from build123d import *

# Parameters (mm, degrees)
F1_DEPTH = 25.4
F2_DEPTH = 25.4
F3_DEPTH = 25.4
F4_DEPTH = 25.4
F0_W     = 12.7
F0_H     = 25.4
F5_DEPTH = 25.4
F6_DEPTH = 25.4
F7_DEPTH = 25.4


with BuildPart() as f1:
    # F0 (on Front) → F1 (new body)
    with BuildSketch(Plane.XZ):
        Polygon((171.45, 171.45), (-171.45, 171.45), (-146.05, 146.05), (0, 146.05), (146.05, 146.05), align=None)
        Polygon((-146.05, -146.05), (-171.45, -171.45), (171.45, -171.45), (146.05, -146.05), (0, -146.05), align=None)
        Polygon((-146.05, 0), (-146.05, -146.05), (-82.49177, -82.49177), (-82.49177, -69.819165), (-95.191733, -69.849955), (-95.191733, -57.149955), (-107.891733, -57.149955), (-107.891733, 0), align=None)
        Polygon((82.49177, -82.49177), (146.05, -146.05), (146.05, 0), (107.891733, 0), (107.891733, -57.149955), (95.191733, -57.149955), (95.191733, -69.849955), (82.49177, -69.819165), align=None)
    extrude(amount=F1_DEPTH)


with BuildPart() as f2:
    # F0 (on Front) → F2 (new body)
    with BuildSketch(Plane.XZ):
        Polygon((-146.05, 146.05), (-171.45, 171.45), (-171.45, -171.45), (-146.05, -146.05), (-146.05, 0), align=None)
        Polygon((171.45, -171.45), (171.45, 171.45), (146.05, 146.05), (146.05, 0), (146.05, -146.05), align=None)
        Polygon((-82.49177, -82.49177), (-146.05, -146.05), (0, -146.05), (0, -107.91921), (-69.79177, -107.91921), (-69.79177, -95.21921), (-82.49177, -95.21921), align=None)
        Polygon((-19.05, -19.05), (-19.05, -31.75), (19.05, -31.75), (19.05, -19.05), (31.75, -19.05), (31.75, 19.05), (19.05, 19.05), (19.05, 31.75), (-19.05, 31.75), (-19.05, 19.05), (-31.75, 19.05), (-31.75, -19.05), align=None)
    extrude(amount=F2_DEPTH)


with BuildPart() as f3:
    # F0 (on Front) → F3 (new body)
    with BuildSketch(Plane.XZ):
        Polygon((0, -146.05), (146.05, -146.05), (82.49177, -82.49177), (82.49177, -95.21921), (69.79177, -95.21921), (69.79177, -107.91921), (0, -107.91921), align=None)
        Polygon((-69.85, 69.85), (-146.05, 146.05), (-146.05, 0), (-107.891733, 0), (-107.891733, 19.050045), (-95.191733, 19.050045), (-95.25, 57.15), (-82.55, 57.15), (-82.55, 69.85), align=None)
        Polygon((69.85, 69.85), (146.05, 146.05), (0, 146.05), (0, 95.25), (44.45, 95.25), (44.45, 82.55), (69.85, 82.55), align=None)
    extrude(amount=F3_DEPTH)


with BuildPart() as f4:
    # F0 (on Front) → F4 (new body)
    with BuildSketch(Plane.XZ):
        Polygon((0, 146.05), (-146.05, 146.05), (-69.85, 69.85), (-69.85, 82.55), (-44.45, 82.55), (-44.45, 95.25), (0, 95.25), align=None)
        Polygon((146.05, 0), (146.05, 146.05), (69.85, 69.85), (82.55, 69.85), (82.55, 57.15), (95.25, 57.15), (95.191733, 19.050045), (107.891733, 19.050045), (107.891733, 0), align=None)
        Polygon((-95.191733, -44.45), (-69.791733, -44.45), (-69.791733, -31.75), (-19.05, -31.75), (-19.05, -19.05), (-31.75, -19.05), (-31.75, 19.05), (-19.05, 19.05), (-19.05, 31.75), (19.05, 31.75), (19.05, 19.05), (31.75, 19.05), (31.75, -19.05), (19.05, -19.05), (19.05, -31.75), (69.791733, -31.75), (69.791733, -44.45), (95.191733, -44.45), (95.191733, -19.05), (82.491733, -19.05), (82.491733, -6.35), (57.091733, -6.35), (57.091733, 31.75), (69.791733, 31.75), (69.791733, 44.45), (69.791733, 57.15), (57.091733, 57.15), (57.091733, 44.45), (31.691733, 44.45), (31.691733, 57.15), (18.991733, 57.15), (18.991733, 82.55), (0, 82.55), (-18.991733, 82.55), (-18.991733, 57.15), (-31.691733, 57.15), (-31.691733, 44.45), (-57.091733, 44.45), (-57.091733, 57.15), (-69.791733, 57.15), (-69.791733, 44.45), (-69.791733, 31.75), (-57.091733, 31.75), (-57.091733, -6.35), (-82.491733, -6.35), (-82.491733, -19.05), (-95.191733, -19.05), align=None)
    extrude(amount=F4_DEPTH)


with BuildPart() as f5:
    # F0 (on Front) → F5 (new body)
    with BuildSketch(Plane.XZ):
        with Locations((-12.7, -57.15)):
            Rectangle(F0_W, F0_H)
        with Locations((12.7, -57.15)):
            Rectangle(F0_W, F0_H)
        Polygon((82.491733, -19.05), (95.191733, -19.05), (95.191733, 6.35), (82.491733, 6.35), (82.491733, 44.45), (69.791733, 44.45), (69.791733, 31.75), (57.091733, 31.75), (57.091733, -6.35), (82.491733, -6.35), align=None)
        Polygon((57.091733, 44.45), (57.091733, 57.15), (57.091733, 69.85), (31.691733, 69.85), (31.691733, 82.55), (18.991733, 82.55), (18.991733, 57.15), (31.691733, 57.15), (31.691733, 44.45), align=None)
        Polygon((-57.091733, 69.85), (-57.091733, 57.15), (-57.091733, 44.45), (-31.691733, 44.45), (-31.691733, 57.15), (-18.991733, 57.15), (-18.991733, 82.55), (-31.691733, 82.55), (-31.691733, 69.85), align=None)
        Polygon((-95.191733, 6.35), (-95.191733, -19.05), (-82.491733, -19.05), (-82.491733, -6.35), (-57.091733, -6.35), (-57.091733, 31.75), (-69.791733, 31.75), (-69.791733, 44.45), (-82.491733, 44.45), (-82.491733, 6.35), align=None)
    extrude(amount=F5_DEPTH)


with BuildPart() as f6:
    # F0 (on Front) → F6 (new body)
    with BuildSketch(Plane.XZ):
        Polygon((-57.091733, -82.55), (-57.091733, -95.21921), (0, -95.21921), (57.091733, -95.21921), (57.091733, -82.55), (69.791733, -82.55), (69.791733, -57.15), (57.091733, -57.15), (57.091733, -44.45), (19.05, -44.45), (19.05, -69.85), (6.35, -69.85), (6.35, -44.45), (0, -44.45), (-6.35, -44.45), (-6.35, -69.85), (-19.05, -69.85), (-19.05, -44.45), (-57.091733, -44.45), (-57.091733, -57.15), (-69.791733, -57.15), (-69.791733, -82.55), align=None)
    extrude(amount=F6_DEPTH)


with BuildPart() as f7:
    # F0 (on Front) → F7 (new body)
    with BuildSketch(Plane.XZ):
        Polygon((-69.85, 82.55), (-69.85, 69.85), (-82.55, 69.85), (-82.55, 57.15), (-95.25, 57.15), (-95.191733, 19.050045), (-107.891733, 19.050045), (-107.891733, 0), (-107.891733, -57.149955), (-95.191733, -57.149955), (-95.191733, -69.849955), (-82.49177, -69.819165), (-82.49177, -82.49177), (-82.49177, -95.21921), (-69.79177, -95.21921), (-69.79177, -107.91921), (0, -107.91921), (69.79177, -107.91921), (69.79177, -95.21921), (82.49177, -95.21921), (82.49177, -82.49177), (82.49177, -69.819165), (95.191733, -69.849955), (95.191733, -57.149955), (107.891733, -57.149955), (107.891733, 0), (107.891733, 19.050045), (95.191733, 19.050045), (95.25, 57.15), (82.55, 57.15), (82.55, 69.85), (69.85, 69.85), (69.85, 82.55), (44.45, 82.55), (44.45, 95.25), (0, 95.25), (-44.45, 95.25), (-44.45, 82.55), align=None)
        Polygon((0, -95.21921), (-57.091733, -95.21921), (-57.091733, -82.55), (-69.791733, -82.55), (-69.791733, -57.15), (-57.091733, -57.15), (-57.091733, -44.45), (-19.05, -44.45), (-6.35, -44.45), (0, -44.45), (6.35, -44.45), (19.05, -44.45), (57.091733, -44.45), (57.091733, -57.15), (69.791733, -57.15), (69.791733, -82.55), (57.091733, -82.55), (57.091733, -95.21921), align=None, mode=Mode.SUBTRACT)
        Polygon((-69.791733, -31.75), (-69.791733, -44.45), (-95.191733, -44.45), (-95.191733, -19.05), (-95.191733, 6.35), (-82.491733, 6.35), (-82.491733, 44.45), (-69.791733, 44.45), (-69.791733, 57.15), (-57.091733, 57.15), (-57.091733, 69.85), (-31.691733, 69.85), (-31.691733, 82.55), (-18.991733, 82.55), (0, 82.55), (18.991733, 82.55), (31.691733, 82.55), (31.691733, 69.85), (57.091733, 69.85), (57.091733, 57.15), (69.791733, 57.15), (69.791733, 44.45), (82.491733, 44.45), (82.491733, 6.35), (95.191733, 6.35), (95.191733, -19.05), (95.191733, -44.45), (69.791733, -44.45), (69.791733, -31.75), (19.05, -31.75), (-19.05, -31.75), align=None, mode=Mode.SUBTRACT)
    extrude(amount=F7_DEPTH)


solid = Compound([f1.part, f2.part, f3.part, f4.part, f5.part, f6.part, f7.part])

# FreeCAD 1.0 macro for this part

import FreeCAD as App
import Part
import Sketcher

V = App.Vector
Q = App.Units.Quantity


def add_polygon(sketch, points):
    """Adds a closed chain of lines whose ends are joined by coincident constraints."""
    first, n = sketch.GeometryCount, len(points)
    for a, b in zip(points, points[1:] + points[:1]):
        sketch.addGeometry(Part.LineSegment(App.Vector(*a, 0), App.Vector(*b, 0)), False)
    for i in range(n):
        sketch.addConstraint(Sketcher.Constraint("Coincident", first + i, 2, first + (i + 1) % n, 1))

doc = App.newDocument("Part")
body = doc.addObject("PartDesign::Body", "Body")
body.AllowCompound = True

# Sketch on XZ plane
sketch1 = body.newObject("Sketcher::SketchObject", "Sketch")
sketch1.AttachmentSupport = (doc.getObject("XZ_Plane"), [""])
sketch1.MapMode = "FlatFace"
add_polygon(sketch1, [(171.45, 171.45), (-171.45, 171.45), (-146.05, 146.05), (146.05, 146.05)])  # lines 0-3
add_polygon(sketch1, [(-146.05, -146.05), (-171.45, -171.45), (171.45, -171.45), (146.05, -146.05)])  # lines 4-7
add_polygon(sketch1, [(-146.05, 0), (-146.05, -146.05), (-82.49177, -82.49177), (-82.49177, -69.819165), (-95.191733, -69.849955), (-95.191733, -57.149955), (-107.891733, -57.149955), (-107.891733, 0)])  # lines 8-15
add_polygon(sketch1, [(82.49177, -82.49177), (146.05, -146.05), (146.05, 0), (107.891733, 0), (107.891733, -57.149955), (95.191733, -57.149955), (95.191733, -69.849955), (82.49177, -69.819165)])  # lines 16-23
sketch1.addConstraint(Sketcher.Constraint("Horizontal", 0))
sketch1.addConstraint(Sketcher.Constraint("Horizontal", 2))
sketch1.addConstraint(Sketcher.Constraint("Horizontal", 5))
sketch1.addConstraint(Sketcher.Constraint("Horizontal", 7))
sketch1.addConstraint(Sketcher.Constraint("Vertical", 8))
sketch1.addConstraint(Sketcher.Constraint("Vertical", 10))
sketch1.addConstraint(Sketcher.Constraint("Vertical", 12))
sketch1.addConstraint(Sketcher.Constraint("Horizontal", 13))
sketch1.addConstraint(Sketcher.Constraint("Vertical", 14))
sketch1.addConstraint(Sketcher.Constraint("Horizontal", 15))
sketch1.addConstraint(Sketcher.Constraint("Vertical", 17))
sketch1.addConstraint(Sketcher.Constraint("Horizontal", 18))
sketch1.addConstraint(Sketcher.Constraint("Vertical", 19))
sketch1.addConstraint(Sketcher.Constraint("Horizontal", 20))
sketch1.addConstraint(Sketcher.Constraint("Vertical", 21))
sketch1.addConstraint(Sketcher.Constraint("Vertical", 23))
sketch1.addConstraint(Sketcher.Constraint("Coincident", 8, 2, 7, 2))
sketch1.addConstraint(Sketcher.Constraint("Coincident", 16, 2, 6, 2))
sketch1.addConstraint(Sketcher.Constraint("Symmetric", 3, 2, 4, 2, -1, 1))
sketch1.addConstraint(Sketcher.Constraint("Symmetric", 1, 2, 6, 2, -1, 1))
sketch1.addConstraint(Sketcher.Constraint("Symmetric", 15, 2, 17, 2, -1, 1))
sketch1.addConstraint(Sketcher.Constraint("Symmetric", 14, 2, 18, 2, -2))
sketch1.addConstraint(Sketcher.Constraint("Symmetric", 12, 2, 20, 2, -2))
sketch1.addConstraint(Sketcher.Constraint("Symmetric", 10, 2, 22, 2, -2))
sketch1.addConstraint(Sketcher.Constraint("Perpendicular", 1, 3))
sketch1.addConstraint(Sketcher.Constraint("Parallel", 3, 4))
sketch1.addConstraint(Sketcher.Constraint("Perpendicular", 4, 6))
sketch1.addConstraint(Sketcher.Constraint("Perpendicular", 6, 9))
sketch1.addConstraint(Sketcher.Constraint("Perpendicular", 9, 16))
sketch1.addConstraint(Sketcher.Constraint("Horizontal", 11, 2, 21, 2))
sketch1.addConstraint(Sketcher.Constraint("Horizontal", 9, 2, 23, 2))
sketch1.addConstraint(Sketcher.Constraint("Equal", 20, 12))
sketch1.addConstraint(Sketcher.Constraint("DistanceX", 0, 2, 0, 1, Q("13.5 in")))
sketch1.addConstraint(Sketcher.Constraint("DistanceX", 2, 1, 2, 2, Q("11.5 in")))
sketch1.addConstraint(Sketcher.Constraint("DistanceX", 13, 2, 13, 1, Q("0.5 in")))
sketch1.addConstraint(Sketcher.Constraint("Distance", 11, Q("0.5 in")))
sketch1.addConstraint(Sketcher.Constraint("DistanceY", 8, 2, 8, 1, Q("5.75 in")))
sketch1.addConstraint(Sketcher.Constraint("Distance", 9, Q("89.884911 mm")))
sketch1.addConstraint(Sketcher.Constraint("DistanceY", 10, 1, 10, 2, Q("12.672605 mm")))
sketch1.addConstraint(Sketcher.Constraint("DistanceY", 14, 1, 14, 2, Q("57.149955 mm")))
pad1 = body.newObject("PartDesign::Pad", "Pad")
pad1.Profile = sketch1
pad1.Length = Q("1 in")
body2 = doc.addObject("PartDesign::Body", "Body001")
body2.AllowCompound = True

# Sketch on XZ plane
sketch2 = body2.newObject("Sketcher::SketchObject", "Sketch001")
sketch2.AttachmentSupport = (doc.getObject("XZ_Plane001"), [""])
sketch2.MapMode = "FlatFace"
add_polygon(sketch2, [(-146.05, 146.05), (-171.45, 171.45), (-171.45, -171.45), (-146.05, -146.05)])  # lines 0-3
add_polygon(sketch2, [(171.45, -171.45), (171.45, 171.45), (146.05, 146.05), (146.05, -146.05)])  # lines 4-7
add_polygon(sketch2, [(-82.49177, -82.49177), (-146.05, -146.05), (0, -146.05), (0, -107.91921), (-69.79177, -107.91921), (-69.79177, -95.21921), (-82.49177, -95.21921)])  # lines 8-14
add_polygon(sketch2, [(-19.05, -19.05), (-19.05, -31.75), (19.05, -31.75), (19.05, -19.05), (31.75, -19.05), (31.75, 19.05), (19.05, 19.05), (19.05, 31.75), (-19.05, 31.75), (-19.05, 19.05), (-31.75, 19.05), (-31.75, -19.05)])  # lines 15-26
sketch2.addConstraint(Sketcher.Constraint("Vertical", 1))
sketch2.addConstraint(Sketcher.Constraint("Vertical", 3))
sketch2.addConstraint(Sketcher.Constraint("Vertical", 4))
sketch2.addConstraint(Sketcher.Constraint("Vertical", 6))
sketch2.addConstraint(Sketcher.Constraint("Horizontal", 9))
sketch2.addConstraint(Sketcher.Constraint("Vertical", 10))
sketch2.addConstraint(Sketcher.Constraint("Horizontal", 11))
sketch2.addConstraint(Sketcher.Constraint("Vertical", 12))
sketch2.addConstraint(Sketcher.Constraint("Horizontal", 13))
sketch2.addConstraint(Sketcher.Constraint("Vertical", 14))
sketch2.addConstraint(Sketcher.Constraint("Vertical", 15))
sketch2.addConstraint(Sketcher.Constraint("Horizontal", 16))
sketch2.addConstraint(Sketcher.Constraint("Vertical", 17))
sketch2.addConstraint(Sketcher.Constraint("Horizontal", 18))
sketch2.addConstraint(Sketcher.Constraint("Vertical", 19))
sketch2.addConstraint(Sketcher.Constraint("Horizontal", 20))
sketch2.addConstraint(Sketcher.Constraint("Vertical", 21))
sketch2.addConstraint(Sketcher.Constraint("Horizontal", 22))
sketch2.addConstraint(Sketcher.Constraint("Vertical", 23))
sketch2.addConstraint(Sketcher.Constraint("Horizontal", 24))
sketch2.addConstraint(Sketcher.Constraint("Vertical", 25))
sketch2.addConstraint(Sketcher.Constraint("Horizontal", 26))
sketch2.addConstraint(Sketcher.Constraint("Coincident", 8, 2, 2, 2))
sketch2.addConstraint(Sketcher.Constraint("Symmetric", 1, 2, 4, 2, -1, 1))
sketch2.addConstraint(Sketcher.Constraint("Symmetric", 2, 2, 5, 2, -1, 1))
sketch2.addConstraint(Sketcher.Constraint("Symmetric", 15, 2, 21, 2, -1, 1))
sketch2.addConstraint(Sketcher.Constraint("Symmetric", 17, 2, 23, 2, -1, 1))
sketch2.addConstraint(Sketcher.Constraint("Symmetric", 19, 2, 25, 2, -1, 1))
sketch2.addConstraint(Sketcher.Constraint("Symmetric", 20, 2, 23, 2, -2))
sketch2.addConstraint(Sketcher.Constraint("PointOnObject", 9, 2, -2))
sketch2.addConstraint(Sketcher.Constraint("Perpendicular", 0, 2))
sketch2.addConstraint(Sketcher.Constraint("Perpendicular", 5, 7))
sketch2.addConstraint(Sketcher.Constraint("Perpendicular", 7, 8))
sketch2.addConstraint(Sketcher.Constraint("Horizontal", 0, 2, 4, 2))
sketch2.addConstraint(Sketcher.Constraint("Horizontal", 3, 2, 5, 2))
sketch2.addConstraint(Sketcher.Constraint("Horizontal", 2, 2, 6, 2))
sketch2.addConstraint(Sketcher.Constraint("Equal", 13, 18))
sketch2.addConstraint(Sketcher.Constraint("Equal", 26, 12))
sketch2.addConstraint(Sketcher.Constraint("Equal", 12, 15))
sketch2.addConstraint(Sketcher.Constraint("Equal", 22, 19))
sketch2.addConstraint(Sketcher.Constraint("DistanceX", 13, 2, 13, 1, Q("0.5 in")))
sketch2.addConstraint(Sketcher.Constraint("DistanceX", 16, 1, 16, 2, Q("1.5 in")))
sketch2.addConstraint(Sketcher.Constraint("DistanceY", 1, 2, 1, 1, Q("13.5 in")))
sketch2.addConstraint(Sketcher.Constraint("DistanceY", 3, 1, 3, 2, Q("11.5 in")))
sketch2.addConstraint(Sketcher.Constraint("DistanceX", 9, 1, 9, 2, Q("5.75 in")))
sketch2.addConstraint(Sketcher.Constraint("DistanceX", 11, 2, 11, 1, Q("69.79177 mm")))
sketch2.addConstraint(Sketcher.Constraint("DistanceY", 10, 1, 10, 2, Q("38.13079 mm")))
pad2 = body2.newObject("PartDesign::Pad", "Pad001")
pad2.Profile = sketch2
pad2.Length = Q("1 in")
body3 = doc.addObject("PartDesign::Body", "Body002")
body3.AllowCompound = True

# Sketch on XZ plane
sketch3 = body3.newObject("Sketcher::SketchObject", "Sketch002")
sketch3.AttachmentSupport = (doc.getObject("XZ_Plane002"), [""])
sketch3.MapMode = "FlatFace"
add_polygon(sketch3, [(0, -146.05), (146.05, -146.05), (82.49177, -82.49177), (82.49177, -95.21921), (69.79177, -95.21921), (69.79177, -107.91921), (0, -107.91921)])  # lines 0-6
add_polygon(sketch3, [(-69.85, 69.85), (-146.05, 146.05), (-146.05, 0), (-107.891733, 0), (-107.891733, 19.050045), (-95.191733, 19.050045), (-95.25, 57.15), (-82.55, 57.15), (-82.55, 69.85)])  # lines 7-15
add_polygon(sketch3, [(69.85, 69.85), (146.05, 146.05), (0, 146.05), (0, 95.25), (44.45, 95.25), (44.45, 82.55), (69.85, 82.55)])  # lines 16-22
sketch3.addConstraint(Sketcher.Constraint("Horizontal", 0))
sketch3.addConstraint(Sketcher.Constraint("Vertical", 2))
sketch3.addConstraint(Sketcher.Constraint("Horizontal", 3))
sketch3.addConstraint(Sketcher.Constraint("Vertical", 4))
sketch3.addConstraint(Sketcher.Constraint("Horizontal", 5))
sketch3.addConstraint(Sketcher.Constraint("Vertical", 6))
sketch3.addConstraint(Sketcher.Constraint("Vertical", 8))
sketch3.addConstraint(Sketcher.Constraint("Horizontal", 9))
sketch3.addConstraint(Sketcher.Constraint("Vertical", 10))
sketch3.addConstraint(Sketcher.Constraint("Horizontal", 11))
sketch3.addConstraint(Sketcher.Constraint("Horizontal", 13))
sketch3.addConstraint(Sketcher.Constraint("Vertical", 14))
sketch3.addConstraint(Sketcher.Constraint("Horizontal", 15))
sketch3.addConstraint(Sketcher.Constraint("Horizontal", 17))
sketch3.addConstraint(Sketcher.Constraint("Vertical", 18))
sketch3.addConstraint(Sketcher.Constraint("Horizontal", 19))
sketch3.addConstraint(Sketcher.Constraint("Vertical", 20))
sketch3.addConstraint(Sketcher.Constraint("Horizontal", 21))
sketch3.addConstraint(Sketcher.Constraint("Vertical", 22))
sketch3.addConstraint(Sketcher.Constraint("Symmetric", 0, 2, 7, 2, -1, 1))
sketch3.addConstraint(Sketcher.Constraint("Symmetric", 6, 2, 17, 2, -1, 1))
sketch3.addConstraint(Sketcher.Constraint("Symmetric", 15, 2, 22, 2, -2))
sketch3.addConstraint(Sketcher.Constraint("PointOnObject", 5, 2, -2))
sketch3.addConstraint(Sketcher.Constraint("PointOnObject", 8, 2, -1))
sketch3.addConstraint(Sketcher.Constraint("Parallel", 1, 7))
sketch3.addConstraint(Sketcher.Constraint("Perpendicular", 7, 16))
sketch3.addConstraint(Sketcher.Constraint("Vertical", 0, 2, 16, 2))
sketch3.addConstraint(Sketcher.Constraint("Equal", 3, 11))
sketch3.addConstraint(Sketcher.Constraint("Equal", 11, 13))
sketch3.addConstraint(Sketcher.Constraint("Equal", 13, 15))
sketch3.addConstraint(Sketcher.Constraint("Equal", 15, 4))
sketch3.addConstraint(Sketcher.Constraint("Equal", 17, 8))
sketch3.addConstraint(Sketcher.Constraint("Equal", 4, 14))
sketch3.addConstraint(Sketcher.Constraint("Equal", 14, 20))
sketch3.addConstraint(Sketcher.Constraint("Equal", 20, 22))
sketch3.addConstraint(Sketcher.Constraint("DistanceX", 21, 1, 21, 2, Q("1 in")))
sketch3.addConstraint(Sketcher.Constraint("DistanceY", 18, 2, 18, 1, Q("2 in")))
sketch3.addConstraint(Sketcher.Constraint("DistanceX", 3, 2, 3, 1, Q("0.5 in")))
sketch3.addConstraint(Sketcher.Constraint("DistanceX", 14, 2, 16, 2, Q("9 in")))
sketch3.addConstraint(Sketcher.Constraint("Distance", 12, Q("1.5 in")))
sketch3.addConstraint(Sketcher.Constraint("DistanceX", 5, 2, 5, 1, Q("69.79177 mm")))
sketch3.addConstraint(Sketcher.Constraint("DistanceY", 2, 2, 2, 1, Q("12.72744 mm")))
sketch3.addConstraint(Sketcher.Constraint("DistanceX", 9, 1, 9, 2, Q("38.158267 mm")))
pad3 = body3.newObject("PartDesign::Pad", "Pad002")
pad3.Profile = sketch3
pad3.Length = Q("1 in")
body4 = doc.addObject("PartDesign::Body", "Body003")
body4.AllowCompound = True

# Sketch on XZ plane
sketch4 = body4.newObject("Sketcher::SketchObject", "Sketch003")
sketch4.AttachmentSupport = (doc.getObject("XZ_Plane003"), [""])
sketch4.MapMode = "FlatFace"
add_polygon(sketch4, [(0, 146.05), (-146.05, 146.05), (-69.85, 69.85), (-69.85, 82.55), (-44.45, 82.55), (-44.45, 95.25), (0, 95.25)])  # lines 0-6
add_polygon(sketch4, [(146.05, 0), (146.05, 146.05), (69.85, 69.85), (82.55, 69.85), (82.55, 57.15), (95.25, 57.15), (95.191733, 19.050045), (107.891733, 19.050045), (107.891733, 0)])  # lines 7-15
add_polygon(sketch4, [(-95.191733, -44.45), (-69.791733, -44.45), (-69.791733, -31.75), (-19.05, -31.75), (-19.05, -19.05), (-31.75, -19.05), (-31.75, 19.05), (-19.05, 19.05), (-19.05, 31.75), (19.05, 31.75), (19.05, 19.05), (31.75, 19.05), (31.75, -19.05), (19.05, -19.05), (19.05, -31.75), (69.791733, -31.75), (69.791733, -44.45), (95.191733, -44.45), (95.191733, -19.05), (82.491733, -19.05), (82.491733, -6.35), (57.091733, -6.35), (57.091733, 31.75), (69.791733, 31.75), (69.791733, 57.15), (57.091733, 57.15), (57.091733, 44.45), (31.691733, 44.45), (31.691733, 57.15), (18.991733, 57.15), (18.991733, 82.55), (-18.991733, 82.55), (-18.991733, 57.15), (-31.691733, 57.15), (-31.691733, 44.45), (-57.091733, 44.45), (-57.091733, 57.15), (-69.791733, 57.15), (-69.791733, 31.75), (-57.091733, 31.75), (-57.091733, -6.35), (-82.491733, -6.35), (-82.491733, -19.05), (-95.191733, -19.05)])  # lines 16-59
sketch4.addConstraint(Sketcher.Constraint("Horizontal", 0))
sketch4.addConstraint(Sketcher.Constraint("Vertical", 2))
sketch4.addConstraint(Sketcher.Constraint("Horizontal", 3))
sketch4.addConstraint(Sketcher.Constraint("Vertical", 4))
sketch4.addConstraint(Sketcher.Constraint("Horizontal", 5))
sketch4.addConstraint(Sketcher.Constraint("Vertical", 6))
sketch4.addConstraint(Sketcher.Constraint("Vertical", 7))
sketch4.addConstraint(Sketcher.Constraint("Horizontal", 9))
sketch4.addConstraint(Sketcher.Constraint("Vertical", 10))
sketch4.addConstraint(Sketcher.Constraint("Horizontal", 11))
sketch4.addConstraint(Sketcher.Constraint("Horizontal", 13))
sketch4.addConstraint(Sketcher.Constraint("Vertical", 14))
sketch4.addConstraint(Sketcher.Constraint("Horizontal", 15))
sketch4.addConstraint(Sketcher.Constraint("Horizontal", 16))
sketch4.addConstraint(Sketcher.Constraint("Vertical", 17))
sketch4.addConstraint(Sketcher.Constraint("Horizontal", 18))
sketch4.addConstraint(Sketcher.Constraint("Vertical", 19))
sketch4.addConstraint(Sketcher.Constraint("Horizontal", 20))
sketch4.addConstraint(Sketcher.Constraint("Vertical", 21))
sketch4.addConstraint(Sketcher.Constraint("Horizontal", 22))
sketch4.addConstraint(Sketcher.Constraint("Vertical", 23))
sketch4.addConstraint(Sketcher.Constraint("Horizontal", 24))
sketch4.addConstraint(Sketcher.Constraint("Vertical", 25))
sketch4.addConstraint(Sketcher.Constraint("Horizontal", 26))
sketch4.addConstraint(Sketcher.Constraint("Vertical", 27))
sketch4.addConstraint(Sketcher.Constraint("Horizontal", 28))
sketch4.addConstraint(Sketcher.Constraint("Vertical", 29))
sketch4.addConstraint(Sketcher.Constraint("Horizontal", 30))
sketch4.addConstraint(Sketcher.Constraint("Vertical", 31))
sketch4.addConstraint(Sketcher.Constraint("Horizontal", 32))
sketch4.addConstraint(Sketcher.Constraint("Vertical", 33))
sketch4.addConstraint(Sketcher.Constraint("Horizontal", 34))
sketch4.addConstraint(Sketcher.Constraint("Vertical", 35))
sketch4.addConstraint(Sketcher.Constraint("Horizontal", 36))
sketch4.addConstraint(Sketcher.Constraint("Vertical", 37))
sketch4.addConstraint(Sketcher.Constraint("Horizontal", 38))
sketch4.addConstraint(Sketcher.Constraint("Vertical", 39))
sketch4.addConstraint(Sketcher.Constraint("Horizontal", 40))
sketch4.addConstraint(Sketcher.Constraint("Vertical", 41))
sketch4.addConstraint(Sketcher.Constraint("Horizontal", 42))
sketch4.addConstraint(Sketcher.Constraint("Vertical", 43))
sketch4.addConstraint(Sketcher.Constraint("Horizontal", 44))
sketch4.addConstraint(Sketcher.Constraint("Vertical", 45))
sketch4.addConstraint(Sketcher.Constraint("Horizontal", 46))
sketch4.addConstraint(Sketcher.Constraint("Vertical", 47))
sketch4.addConstraint(Sketcher.Constraint("Horizontal", 48))
sketch4.addConstraint(Sketcher.Constraint("Vertical", 49))
sketch4.addConstraint(Sketcher.Constraint("Horizontal", 50))
sketch4.addConstraint(Sketcher.Constraint("Vertical", 51))
sketch4.addConstraint(Sketcher.Constraint("Horizontal", 52))
sketch4.addConstraint(Sketcher.Constraint("Vertical", 53))
sketch4.addConstraint(Sketcher.Constraint("Horizontal", 54))
sketch4.addConstraint(Sketcher.Constraint("Vertical", 55))
sketch4.addConstraint(Sketcher.Constraint("Horizontal", 56))
sketch4.addConstraint(Sketcher.Constraint("Vertical", 57))
sketch4.addConstraint(Sketcher.Constraint("Horizontal", 58))
sketch4.addConstraint(Sketcher.Constraint("Vertical", 59))
sketch4.addConstraint(Sketcher.Constraint("Symmetric", 18, 2, 24, 2, -1, 1))
sketch4.addConstraint(Sketcher.Constraint("Symmetric", 20, 2, 26, 2, -1, 1))
sketch4.addConstraint(Sketcher.Constraint("Symmetric", 22, 2, 28, 2, -1, 1))
sketch4.addConstraint(Sketcher.Constraint("Symmetric", 17, 2, 38, 2, -1, 1))
sketch4.addConstraint(Sketcher.Constraint("Symmetric", 30, 2, 53, 2, -1, 1))
sketch4.addConstraint(Sketcher.Constraint("Symmetric", 0, 2, 7, 2, -2))
sketch4.addConstraint(Sketcher.Constraint("Symmetric", 1, 2, 8, 2, -2))
sketch4.addConstraint(Sketcher.Constraint("Symmetric", 22, 2, 25, 2, -2))
sketch4.addConstraint(Sketcher.Constraint("Symmetric", 17, 2, 30, 2, -2))
sketch4.addConstraint(Sketcher.Constraint("Symmetric", 44, 2, 47, 2, -2))
sketch4.addConstraint(Sketcher.Constraint("Symmetric", 42, 2, 49, 2, -2))
sketch4.addConstraint(Sketcher.Constraint("Symmetric", 40, 2, 51, 2, -2))
sketch4.addConstraint(Sketcher.Constraint("Symmetric", 36, 2, 55, 2, -2))
sketch4.addConstraint(Sketcher.Constraint("Symmetric", 34, 2, 57, 2, -2))
sketch4.addConstraint(Sketcher.Constraint("Symmetric", 32, 2, 59, 2, -2))
sketch4.addConstraint(Sketcher.Constraint("PointOnObject", 5, 2, -2))
sketch4.addConstraint(Sketcher.Constraint("PointOnObject", 14, 2, -1))
sketch4.addConstraint(Sketcher.Constraint("Perpendicular", 1, 8))
sketch4.addConstraint(Sketcher.Constraint("Horizontal", 28, 2, 33, 2))
sketch4.addConstraint(Sketcher.Constraint("Horizontal", 11, 2, 39, 2))
sketch4.addConstraint(Sketcher.Constraint("Horizontal", 40, 2, 43, 2))
sketch4.addConstraint(Sketcher.Constraint("Horizontal", 3, 2, 45, 2))
sketch4.addConstraint(Sketcher.Constraint("Vertical", 12, 2, 32, 2))
sketch4.addConstraint(Sketcher.Constraint("Vertical", 37, 2, 40, 2))
sketch4.addConstraint(Sketcher.Constraint("Equal", 9, 11))
sketch4.addConstraint(Sketcher.Constraint("Equal", 11, 13))
sketch4.addConstraint(Sketcher.Constraint("Equal", 3, 16))
sketch4.addConstraint(Sketcher.Constraint("Equal", 13, 20))
sketch4.addConstraint(Sketcher.Constraint("Equal", 28, 34))
sketch4.addConstraint(Sketcher.Constraint("Equal", 32, 36))
sketch4.addConstraint(Sketcher.Constraint("Equal", 36, 42))
sketch4.addConstraint(Sketcher.Constraint("Equal", 40, 44))
sketch4.addConstraint(Sketcher.Constraint("Equal", 58, 2))
sketch4.addConstraint(Sketcher.Constraint("Equal", 2, 4))
sketch4.addConstraint(Sketcher.Constraint("Equal", 0, 7))
sketch4.addConstraint(Sketcher.Constraint("Equal", 4, 10))
sketch4.addConstraint(Sketcher.Constraint("Equal", 10, 17))
sketch4.addConstraint(Sketcher.Constraint("Equal", 17, 19))
sketch4.addConstraint(Sketcher.Constraint("Equal", 24, 21))
sketch4.addConstraint(Sketcher.Constraint("Equal", 56, 33))
sketch4.addConstraint(Sketcher.Constraint("Equal", 31, 35))
sketch4.addConstraint(Sketcher.Constraint("Equal", 33, 39))
sketch4.addConstraint(Sketcher.Constraint("Equal", 35, 41))
sketch4.addConstraint(Sketcher.Constraint("DistanceX", 3, 1, 3, 2, Q("1 in")))
sketch4.addConstraint(Sketcher.Constraint("DistanceY", 6, 1, 6, 2, Q("2 in")))
sketch4.addConstraint(Sketcher.Constraint("DistanceX", 24, 1, 24, 2, Q("1.5 in")))
sketch4.addConstraint(Sketcher.Constraint("Distance", 12, Q("1.5 in")))
sketch4.addConstraint(Sketcher.Constraint("DistanceX", 15, 1, 15, 2, Q("38.158267 mm")))
pad4 = body4.newObject("PartDesign::Pad", "Pad003")
pad4.Profile = sketch4
pad4.Length = Q("1 in")
body5 = doc.addObject("PartDesign::Body", "Body004")
body5.AllowCompound = True

# Sketch on XZ plane
sketch5 = body5.newObject("Sketcher::SketchObject", "Sketch004")
sketch5.AttachmentSupport = (doc.getObject("XZ_Plane004"), [""])
sketch5.MapMode = "FlatFace"
add_polygon(sketch5, [(-19.05, -44.45), (-19.05, -69.85), (-6.35, -69.85), (-6.35, -44.45)])  # lines 0-3
add_polygon(sketch5, [(6.35, -44.45), (6.35, -69.85), (19.05, -69.85), (19.05, -44.45)])  # lines 4-7
add_polygon(sketch5, [(82.491733, -19.05), (95.191733, -19.05), (95.191733, 6.35), (82.491733, 6.35), (82.491733, 44.45), (69.791733, 44.45), (69.791733, 31.75), (57.091733, 31.75), (57.091733, -6.35), (82.491733, -6.35)])  # lines 8-17
add_polygon(sketch5, [(57.091733, 44.45), (57.091733, 69.85), (31.691733, 69.85), (31.691733, 82.55), (18.991733, 82.55), (18.991733, 57.15), (31.691733, 57.15), (31.691733, 44.45)])  # lines 18-25
add_polygon(sketch5, [(-57.091733, 69.85), (-57.091733, 44.45), (-31.691733, 44.45), (-31.691733, 57.15), (-18.991733, 57.15), (-18.991733, 82.55), (-31.691733, 82.55), (-31.691733, 69.85)])  # lines 26-33
add_polygon(sketch5, [(-95.191733, 6.35), (-95.191733, -19.05), (-82.491733, -19.05), (-82.491733, -6.35), (-57.091733, -6.35), (-57.091733, 31.75), (-69.791733, 31.75), (-69.791733, 44.45), (-82.491733, 44.45), (-82.491733, 6.35)])  # lines 34-43
sketch5.addConstraint(Sketcher.Constraint("Vertical", 0))
sketch5.addConstraint(Sketcher.Constraint("Horizontal", 1))
sketch5.addConstraint(Sketcher.Constraint("Vertical", 2))
sketch5.addConstraint(Sketcher.Constraint("Horizontal", 3))
sketch5.addConstraint(Sketcher.Constraint("Vertical", 4))
sketch5.addConstraint(Sketcher.Constraint("Horizontal", 5))
sketch5.addConstraint(Sketcher.Constraint("Vertical", 6))
sketch5.addConstraint(Sketcher.Constraint("Horizontal", 7))
sketch5.addConstraint(Sketcher.Constraint("Horizontal", 8))
sketch5.addConstraint(Sketcher.Constraint("Vertical", 9))
sketch5.addConstraint(Sketcher.Constraint("Horizontal", 10))
sketch5.addConstraint(Sketcher.Constraint("Vertical", 11))
sketch5.addConstraint(Sketcher.Constraint("Horizontal", 12))
sketch5.addConstraint(Sketcher.Constraint("Vertical", 13))
sketch5.addConstraint(Sketcher.Constraint("Horizontal", 14))
sketch5.addConstraint(Sketcher.Constraint("Vertical", 15))
sketch5.addConstraint(Sketcher.Constraint("Horizontal", 16))
sketch5.addConstraint(Sketcher.Constraint("Vertical", 17))
sketch5.addConstraint(Sketcher.Constraint("Vertical", 18))
sketch5.addConstraint(Sketcher.Constraint("Horizontal", 19))
sketch5.addConstraint(Sketcher.Constraint("Vertical", 20))
sketch5.addConstraint(Sketcher.Constraint("Horizontal", 21))
sketch5.addConstraint(Sketcher.Constraint("Vertical", 22))
sketch5.addConstraint(Sketcher.Constraint("Horizontal", 23))
sketch5.addConstraint(Sketcher.Constraint("Vertical", 24))
sketch5.addConstraint(Sketcher.Constraint("Horizontal", 25))
sketch5.addConstraint(Sketcher.Constraint("Vertical", 26))
sketch5.addConstraint(Sketcher.Constraint("Horizontal", 27))
sketch5.addConstraint(Sketcher.Constraint("Vertical", 28))
sketch5.addConstraint(Sketcher.Constraint("Horizontal", 29))
sketch5.addConstraint(Sketcher.Constraint("Vertical", 30))
sketch5.addConstraint(Sketcher.Constraint("Horizontal", 31))
sketch5.addConstraint(Sketcher.Constraint("Vertical", 32))
sketch5.addConstraint(Sketcher.Constraint("Horizontal", 33))
sketch5.addConstraint(Sketcher.Constraint("Vertical", 34))
sketch5.addConstraint(Sketcher.Constraint("Horizontal", 35))
sketch5.addConstraint(Sketcher.Constraint("Vertical", 36))
sketch5.addConstraint(Sketcher.Constraint("Horizontal", 37))
sketch5.addConstraint(Sketcher.Constraint("Vertical", 38))
sketch5.addConstraint(Sketcher.Constraint("Horizontal", 39))
sketch5.addConstraint(Sketcher.Constraint("Vertical", 40))
sketch5.addConstraint(Sketcher.Constraint("Horizontal", 41))
sketch5.addConstraint(Sketcher.Constraint("Vertical", 42))
sketch5.addConstraint(Sketcher.Constraint("Horizontal", 43))
sketch5.addConstraint(Sketcher.Constraint("Symmetric", 10, 2, 36, 2, -1, 1))
sketch5.addConstraint(Sketcher.Constraint("Symmetric", 16, 2, 42, 2, -1, 1))
sketch5.addConstraint(Sketcher.Constraint("Symmetric", 1, 2, 4, 2, -2))
sketch5.addConstraint(Sketcher.Constraint("Symmetric", 3, 2, 6, 2, -2))
sketch5.addConstraint(Sketcher.Constraint("Symmetric", 25, 2, 26, 2, -2))
sketch5.addConstraint(Sketcher.Constraint("Symmetric", 23, 2, 28, 2, -2))
sketch5.addConstraint(Sketcher.Constraint("Symmetric", 21, 2, 30, 2, -2))
sketch5.addConstraint(Sketcher.Constraint("Symmetric", 19, 2, 32, 2, -2))
sketch5.addConstraint(Sketcher.Constraint("Symmetric", 8, 2, 34, 2, -2))
sketch5.addConstraint(Sketcher.Constraint("Symmetric", 16, 2, 36, 2, -2))
sketch5.addConstraint(Sketcher.Constraint("Symmetric", 14, 2, 38, 2, -2))
sketch5.addConstraint(Sketcher.Constraint("Symmetric", 12, 2, 40, 2, -2))
sketch5.addConstraint(Sketcher.Constraint("Horizontal", 12, 2, 24, 2))
sketch5.addConstraint(Sketcher.Constraint("Vertical", 15, 2, 18, 2))
sketch5.addConstraint(Sketcher.Constraint("Vertical", 20, 2, 23, 2))
sketch5.addConstraint(Sketcher.Constraint("Equal", 7, 8))
sketch5.addConstraint(Sketcher.Constraint("Equal", 10, 12))
sketch5.addConstraint(Sketcher.Constraint("Equal", 12, 14))
sketch5.addConstraint(Sketcher.Constraint("Equal", 16, 19))
sketch5.addConstraint(Sketcher.Constraint("Equal", 14, 21))
sketch5.addConstraint(Sketcher.Constraint("Equal", 37, 0))
sketch5.addConstraint(Sketcher.Constraint("Equal", 6, 9))
sketch5.addConstraint(Sketcher.Constraint("Equal", 43, 13))
sketch5.addConstraint(Sketcher.Constraint("Equal", 11, 15))
sketch5.addConstraint(Sketcher.Constraint("Equal", 9, 18))
sketch5.addConstraint(Sketcher.Constraint("Equal", 17, 20))
sketch5.addConstraint(Sketcher.Constraint("Equal", 18, 22))
sketch5.addConstraint(Sketcher.Constraint("DistanceX", 16, 1, 16, 2, Q("1 in")))
sketch5.addConstraint(Sketcher.Constraint("DistanceY", 11, 1, 11, 2, Q("1.5 in")))
sketch5.addConstraint(Sketcher.Constraint("DistanceX", 0, 2, 4, 2, Q("1 in")))
sketch5.addConstraint(Sketcher.Constraint("DistanceY", 6, 2, 8, 2, Q("1 in")))
sketch5.addConstraint(Sketcher.Constraint("DistanceX", -1, 1, 8, 2, Q("95.191733 mm")))
pad5 = body5.newObject("PartDesign::Pad", "Pad004")
pad5.Profile = sketch5
pad5.Length = Q("1 in")
body6 = doc.addObject("PartDesign::Body", "Body005")

# Sketch on XZ plane
sketch6 = body6.newObject("Sketcher::SketchObject", "Sketch005")
sketch6.AttachmentSupport = (doc.getObject("XZ_Plane005"), [""])
sketch6.MapMode = "FlatFace"
add_polygon(sketch6, [(-57.091733, -82.55), (-57.091733, -95.21921), (57.091733, -95.21921), (57.091733, -82.55), (69.791733, -82.55), (69.791733, -57.15), (57.091733, -57.15), (57.091733, -44.45), (19.05, -44.45), (19.05, -69.85), (6.35, -69.85), (6.35, -44.45), (-6.35, -44.45), (-6.35, -69.85), (-19.05, -69.85), (-19.05, -44.45), (-57.091733, -44.45), (-57.091733, -57.15), (-69.791733, -57.15), (-69.791733, -82.55)])  # lines 0-19
sketch6.addConstraint(Sketcher.Constraint("Vertical", 0))
sketch6.addConstraint(Sketcher.Constraint("Horizontal", 1))
sketch6.addConstraint(Sketcher.Constraint("Vertical", 2))
sketch6.addConstraint(Sketcher.Constraint("Horizontal", 3))
sketch6.addConstraint(Sketcher.Constraint("Vertical", 4))
sketch6.addConstraint(Sketcher.Constraint("Horizontal", 5))
sketch6.addConstraint(Sketcher.Constraint("Vertical", 6))
sketch6.addConstraint(Sketcher.Constraint("Horizontal", 7))
sketch6.addConstraint(Sketcher.Constraint("Vertical", 8))
sketch6.addConstraint(Sketcher.Constraint("Horizontal", 9))
sketch6.addConstraint(Sketcher.Constraint("Vertical", 10))
sketch6.addConstraint(Sketcher.Constraint("Horizontal", 11))
sketch6.addConstraint(Sketcher.Constraint("Vertical", 12))
sketch6.addConstraint(Sketcher.Constraint("Horizontal", 13))
sketch6.addConstraint(Sketcher.Constraint("Vertical", 14))
sketch6.addConstraint(Sketcher.Constraint("Horizontal", 15))
sketch6.addConstraint(Sketcher.Constraint("Vertical", 16))
sketch6.addConstraint(Sketcher.Constraint("Horizontal", 17))
sketch6.addConstraint(Sketcher.Constraint("Vertical", 18))
sketch6.addConstraint(Sketcher.Constraint("Horizontal", 19))
sketch6.addConstraint(Sketcher.Constraint("Symmetric", 9, 2, 12, 2, -2))
sketch6.addConstraint(Sketcher.Constraint("Symmetric", 7, 2, 14, 2, -2))
sketch6.addConstraint(Sketcher.Constraint("Symmetric", 5, 2, 16, 2, -2))
sketch6.addConstraint(Sketcher.Constraint("Symmetric", 3, 2, 18, 2, -2))
sketch6.addConstraint(Sketcher.Constraint("Horizontal", 7, 2, 10, 2))
sketch6.addConstraint(Sketcher.Constraint("Vertical", 2, 2, 5, 2))
sketch6.addConstraint(Sketcher.Constraint("Vertical", 0, 2, 15, 2))
sketch6.addConstraint(Sketcher.Constraint("Equal", 5, 9))
sketch6.addConstraint(Sketcher.Constraint("Equal", 9, 11))
sketch6.addConstraint(Sketcher.Constraint("Equal", 19, 6))
sketch6.addConstraint(Sketcher.Constraint("Equal", 4, 8))
sketch6.addConstraint(Sketcher.Constraint("DistanceY", 4, 1, 4, 2, Q("1 in")))
sketch6.addConstraint(Sketcher.Constraint("DistanceX", 3, 1, 3, 2, Q("0.5 in")))
sketch6.addConstraint(Sketcher.Constraint("DistanceY", 2, 2, -1, 1, Q("3.25 in")))
sketch6.addConstraint(Sketcher.Constraint("DistanceY", 0, 2, 0, 1, Q("12.66921 mm")))
sketch6.addConstraint(Sketcher.Constraint("DistanceX", 1, 1, 1, 2, Q("114.183466 mm")))
pad6 = body6.newObject("PartDesign::Pad", "Pad005")
pad6.Profile = sketch6
pad6.Length = Q("1 in")
body7 = doc.addObject("PartDesign::Body", "Body006")

# Sketch on XZ plane
sketch7 = body7.newObject("Sketcher::SketchObject", "Sketch006")
sketch7.AttachmentSupport = (doc.getObject("XZ_Plane006"), [""])
sketch7.MapMode = "FlatFace"
add_polygon(sketch7, [(-69.85, 82.55), (-69.85, 69.85), (-82.55, 69.85), (-82.55, 57.15), (-95.25, 57.15), (-95.191733, 19.050045), (-107.891733, 19.050045), (-107.891733, -57.149955), (-95.191733, -57.149955), (-95.191733, -69.849955), (-82.49177, -69.819165), (-82.49177, -95.21921), (-69.79177, -95.21921), (-69.79177, -107.91921), (69.79177, -107.91921), (69.79177, -95.21921), (82.49177, -95.21921), (82.49177, -69.819165), (95.191733, -69.849955), (95.191733, -57.149955), (107.891733, -57.149955), (107.891733, 19.050045), (95.191733, 19.050045), (95.25, 57.15), (82.55, 57.15), (82.55, 69.85), (69.85, 69.85), (69.85, 82.55), (44.45, 82.55), (44.45, 95.25), (-44.45, 95.25), (-44.45, 82.55)])  # lines 0-31
add_polygon(sketch7, [(57.091733, -95.21921), (-57.091733, -95.21921), (-57.091733, -82.55), (-69.791733, -82.55), (-69.791733, -57.15), (-57.091733, -57.15), (-57.091733, -44.45), (57.091733, -44.45), (57.091733, -57.15), (69.791733, -57.15), (69.791733, -82.55), (57.091733, -82.55)])  # lines 32-43
add_polygon(sketch7, [(69.791733, -31.75), (-69.791733, -31.75), (-69.791733, -44.45), (-95.191733, -44.45), (-95.191733, 6.35), (-82.491733, 6.35), (-82.491733, 44.45), (-69.791733, 44.45), (-69.791733, 57.15), (-57.091733, 57.15), (-57.091733, 69.85), (-31.691733, 69.85), (-31.691733, 82.55), (31.691733, 82.55), (31.691733, 69.85), (57.091733, 69.85), (57.091733, 57.15), (69.791733, 57.15), (69.791733, 44.45), (82.491733, 44.45), (82.491733, 6.35), (95.191733, 6.35), (95.191733, -44.45), (69.791733, -44.45)])  # lines 44-67
sketch7.addConstraint(Sketcher.Constraint("Vertical", 0))
sketch7.addConstraint(Sketcher.Constraint("Horizontal", 1))
sketch7.addConstraint(Sketcher.Constraint("Vertical", 2))
sketch7.addConstraint(Sketcher.Constraint("Horizontal", 3))
sketch7.addConstraint(Sketcher.Constraint("Horizontal", 5))
sketch7.addConstraint(Sketcher.Constraint("Vertical", 6))
sketch7.addConstraint(Sketcher.Constraint("Horizontal", 7))
sketch7.addConstraint(Sketcher.Constraint("Vertical", 8))
sketch7.addConstraint(Sketcher.Constraint("Vertical", 10))
sketch7.addConstraint(Sketcher.Constraint("Horizontal", 11))
sketch7.addConstraint(Sketcher.Constraint("Vertical", 12))
sketch7.addConstraint(Sketcher.Constraint("Horizontal", 13))
sketch7.addConstraint(Sketcher.Constraint("Vertical", 14))
sketch7.addConstraint(Sketcher.Constraint("Horizontal", 15))
sketch7.addConstraint(Sketcher.Constraint("Vertical", 16))
sketch7.addConstraint(Sketcher.Constraint("Vertical", 18))
sketch7.addConstraint(Sketcher.Constraint("Horizontal", 19))
sketch7.addConstraint(Sketcher.Constraint("Vertical", 20))
sketch7.addConstraint(Sketcher.Constraint("Horizontal", 21))
sketch7.addConstraint(Sketcher.Constraint("Horizontal", 23))
sketch7.addConstraint(Sketcher.Constraint("Vertical", 24))
sketch7.addConstraint(Sketcher.Constraint("Horizontal", 25))
sketch7.addConstraint(Sketcher.Constraint("Vertical", 26))
sketch7.addConstraint(Sketcher.Constraint("Horizontal", 27))
sketch7.addConstraint(Sketcher.Constraint("Vertical", 28))
sketch7.addConstraint(Sketcher.Constraint("Horizontal", 29))
sketch7.addConstraint(Sketcher.Constraint("Vertical", 30))
sketch7.addConstraint(Sketcher.Constraint("Horizontal", 31))
sketch7.addConstraint(Sketcher.Constraint("Horizontal", 32))
sketch7.addConstraint(Sketcher.Constraint("Vertical", 33))
sketch7.addConstraint(Sketcher.Constraint("Horizontal", 34))
sketch7.addConstraint(Sketcher.Constraint("Vertical", 35))
sketch7.addConstraint(Sketcher.Constraint("Horizontal", 36))
sketch7.addConstraint(Sketcher.Constraint("Vertical", 37))
sketch7.addConstraint(Sketcher.Constraint("Horizontal", 38))
sketch7.addConstraint(Sketcher.Constraint("Vertical", 39))
sketch7.addConstraint(Sketcher.Constraint("Horizontal", 40))
sketch7.addConstraint(Sketcher.Constraint("Vertical", 41))
sketch7.addConstraint(Sketcher.Constraint("Horizontal", 42))
sketch7.addConstraint(Sketcher.Constraint("Vertical", 43))
sketch7.addConstraint(Sketcher.Constraint("Horizontal", 44))
sketch7.addConstraint(Sketcher.Constraint("Vertical", 45))
sketch7.addConstraint(Sketcher.Constraint("Horizontal", 46))
sketch7.addConstraint(Sketcher.Constraint("Vertical", 47))
sketch7.addConstraint(Sketcher.Constraint("Horizontal", 48))
sketch7.addConstraint(Sketcher.Constraint("Vertical", 49))
sketch7.addConstraint(Sketcher.Constraint("Horizontal", 50))
sketch7.addConstraint(Sketcher.Constraint("Vertical", 51))
sketch7.addConstraint(Sketcher.Constraint("Horizontal", 52))
sketch7.addConstraint(Sketcher.Constraint("Vertical", 53))
sketch7.addConstraint(Sketcher.Constraint("Horizontal", 54))
sketch7.addConstraint(Sketcher.Constraint("Vertical", 55))
sketch7.addConstraint(Sketcher.Constraint("Horizontal", 56))
sketch7.addConstraint(Sketcher.Constraint("Vertical", 57))
sketch7.addConstraint(Sketcher.Constraint("Horizontal", 58))
sketch7.addConstraint(Sketcher.Constraint("Vertical", 59))
sketch7.addConstraint(Sketcher.Constraint("Horizontal", 60))
sketch7.addConstraint(Sketcher.Constraint("Vertical", 61))
sketch7.addConstraint(Sketcher.Constraint("Horizontal", 62))
sketch7.addConstraint(Sketcher.Constraint("Vertical", 63))
sketch7.addConstraint(Sketcher.Constraint("Horizontal", 64))
sketch7.addConstraint(Sketcher.Constraint("Vertical", 65))
sketch7.addConstraint(Sketcher.Constraint("Horizontal", 66))
sketch7.addConstraint(Sketcher.Constraint("Vertical", 67))
sketch7.addConstraint(Sketcher.Constraint("Symmetric", 40, 2, 51, 2, -1, 1))
sketch7.addConstraint(Sketcher.Constraint("Symmetric", 36, 2, 59, 2, -1, 1))
sketch7.addConstraint(Sketcher.Constraint("Symmetric", 45, 2, 61, 2, -1, 1))
sketch7.addConstraint(Sketcher.Constraint("Symmetric", 50, 2, 66, 2, -1, 1))
sketch7.addConstraint(Sketcher.Constraint("Symmetric", 11, 2, 14, 2, -2))
sketch7.addConstraint(Sketcher.Constraint("Symmetric", 9, 2, 16, 2, -2))
sketch7.addConstraint(Sketcher.Constraint("Symmetric", 8, 2, 17, 2, -2))
sketch7.addConstraint(Sketcher.Constraint("Symmetric", 6, 2, 19, 2, -2))
sketch7.addConstraint(Sketcher.Constraint("Symmetric", 4, 2, 21, 2, -2))
sketch7.addConstraint(Sketcher.Constraint("Symmetric", 3, 2, 22, 2, -2))
sketch7.addConstraint(Sketcher.Constraint("Symmetric", 1, 2, 24, 2, -2))
sketch7.addConstraint(Sketcher.Constraint("Symmetric", 27, 2, 30, 2, -2))
sketch7.addConstraint(Sketcher.Constraint("Symmetric", 36, 2, 39, 2, -2))
sketch7.addConstraint(Sketcher.Constraint("Symmetric", 34, 2, 41, 2, -2))
sketch7.addConstraint(Sketcher.Constraint("Symmetric", 54, 2, 57, 2, -2))
sketch7.addConstraint(Sketcher.Constraint("Symmetric", 50, 2, 61, 2, -2))
sketch7.addConstraint(Sketcher.Constraint("Symmetric", 48, 2, 63, 2, -2))
sketch7.addConstraint(Sketcher.Constraint("Horizontal", 15, 2, 32, 2))
sketch7.addConstraint(Sketcher.Constraint("Horizontal", 38, 2, 45, 2))
sketch7.addConstraint(Sketcher.Constraint("Horizontal", 23, 2, 51, 2))
sketch7.addConstraint(Sketcher.Constraint("Horizontal", 25, 2, 53, 2))
sketch7.addConstraint(Sketcher.Constraint("Horizontal", 31, 2, 55, 2))
sketch7.addConstraint(Sketcher.Constraint("Vertical", 4, 2, 7, 2))
sketch7.addConstraint(Sketcher.Constraint("Vertical", 33, 2, 36, 2))
sketch7.addConstraint(Sketcher.Constraint("Vertical", 39, 2, 42, 2))
sketch7.addConstraint(Sketcher.Constraint("Vertical", 8, 2, 46, 2))
sketch7.addConstraint(Sketcher.Constraint("Vertical", 37, 2, 52, 2))
sketch7.addConstraint(Sketcher.Constraint("Vertical", 21, 2, 64, 2))
sketch7.addConstraint(Sketcher.Constraint("Equal", 1, 3))
sketch7.addConstraint(Sketcher.Constraint("Equal", 3, 5))
sketch7.addConstraint(Sketcher.Constraint("Equal", 7, 11))
sketch7.addConstraint(Sketcher.Constraint("Equal", 23, 25))
sketch7.addConstraint(Sketcher.Constraint("Equal", 25, 34))
sketch7.addConstraint(Sketcher.Constraint("Equal", 31, 46))
sketch7.addConstraint(Sketcher.Constraint("Equal", 42, 48))
sketch7.addConstraint(Sketcher.Constraint("Equal", 48, 50))
sketch7.addConstraint(Sketcher.Constraint("Equal", 46, 54))
sketch7.addConstraint(Sketcher.Constraint("Equal", 64, 0))
sketch7.addConstraint(Sketcher.Constraint("Equal", 0, 2))
sketch7.addConstraint(Sketcher.Constraint("Equal", 2, 8))
sketch7.addConstraint(Sketcher.Constraint("Equal", 8, 12))
sketch7.addConstraint(Sketcher.Constraint("Equal", 26, 28))
sketch7.addConstraint(Sketcher.Constraint("Equal", 66, 35))
sketch7.addConstraint(Sketcher.Constraint("Equal", 30, 37))
sketch7.addConstraint(Sketcher.Constraint("Equal", 39, 45))
sketch7.addConstraint(Sketcher.Constraint("DistanceX", 27, 2, 27, 1, Q("1 in")))
sketch7.addConstraint(Sketcher.Constraint("DistanceY", 6, 2, 6, 1, Q("3 in")))
sketch7.addConstraint(Sketcher.Constraint("DistanceY", 47, 1, 47, 2, Q("2 in")))
sketch7.addConstraint(Sketcher.Constraint("DistanceX", 29, 2, 29, 1, Q("3.5 in")))
sketch7.addConstraint(Sketcher.Constraint("DistanceY", 49, 1, 49, 2, Q("1.5 in")))
sketch7.addConstraint(Sketcher.Constraint("Distance", 4, Q("1.5 in")))
sketch7.addConstraint(Sketcher.Constraint("Distance", 9, Q("0.5 in")))
sketch7.addConstraint(Sketcher.Constraint("DistanceX", 13, 1, 13, 2, Q("139.58354 mm")))
sketch7.addConstraint(Sketcher.Constraint("DistanceY", 33, 1, 33, 2, Q("12.66921 mm")))
sketch7.addConstraint(Sketcher.Constraint("DistanceY", 10, 2, 10, 1, Q("25.400045 mm")))
pad7 = body7.newObject("PartDesign::Pad", "Pad006")
pad7.Profile = sketch7
pad7.Length = Q("1 in")

doc.recompute()
